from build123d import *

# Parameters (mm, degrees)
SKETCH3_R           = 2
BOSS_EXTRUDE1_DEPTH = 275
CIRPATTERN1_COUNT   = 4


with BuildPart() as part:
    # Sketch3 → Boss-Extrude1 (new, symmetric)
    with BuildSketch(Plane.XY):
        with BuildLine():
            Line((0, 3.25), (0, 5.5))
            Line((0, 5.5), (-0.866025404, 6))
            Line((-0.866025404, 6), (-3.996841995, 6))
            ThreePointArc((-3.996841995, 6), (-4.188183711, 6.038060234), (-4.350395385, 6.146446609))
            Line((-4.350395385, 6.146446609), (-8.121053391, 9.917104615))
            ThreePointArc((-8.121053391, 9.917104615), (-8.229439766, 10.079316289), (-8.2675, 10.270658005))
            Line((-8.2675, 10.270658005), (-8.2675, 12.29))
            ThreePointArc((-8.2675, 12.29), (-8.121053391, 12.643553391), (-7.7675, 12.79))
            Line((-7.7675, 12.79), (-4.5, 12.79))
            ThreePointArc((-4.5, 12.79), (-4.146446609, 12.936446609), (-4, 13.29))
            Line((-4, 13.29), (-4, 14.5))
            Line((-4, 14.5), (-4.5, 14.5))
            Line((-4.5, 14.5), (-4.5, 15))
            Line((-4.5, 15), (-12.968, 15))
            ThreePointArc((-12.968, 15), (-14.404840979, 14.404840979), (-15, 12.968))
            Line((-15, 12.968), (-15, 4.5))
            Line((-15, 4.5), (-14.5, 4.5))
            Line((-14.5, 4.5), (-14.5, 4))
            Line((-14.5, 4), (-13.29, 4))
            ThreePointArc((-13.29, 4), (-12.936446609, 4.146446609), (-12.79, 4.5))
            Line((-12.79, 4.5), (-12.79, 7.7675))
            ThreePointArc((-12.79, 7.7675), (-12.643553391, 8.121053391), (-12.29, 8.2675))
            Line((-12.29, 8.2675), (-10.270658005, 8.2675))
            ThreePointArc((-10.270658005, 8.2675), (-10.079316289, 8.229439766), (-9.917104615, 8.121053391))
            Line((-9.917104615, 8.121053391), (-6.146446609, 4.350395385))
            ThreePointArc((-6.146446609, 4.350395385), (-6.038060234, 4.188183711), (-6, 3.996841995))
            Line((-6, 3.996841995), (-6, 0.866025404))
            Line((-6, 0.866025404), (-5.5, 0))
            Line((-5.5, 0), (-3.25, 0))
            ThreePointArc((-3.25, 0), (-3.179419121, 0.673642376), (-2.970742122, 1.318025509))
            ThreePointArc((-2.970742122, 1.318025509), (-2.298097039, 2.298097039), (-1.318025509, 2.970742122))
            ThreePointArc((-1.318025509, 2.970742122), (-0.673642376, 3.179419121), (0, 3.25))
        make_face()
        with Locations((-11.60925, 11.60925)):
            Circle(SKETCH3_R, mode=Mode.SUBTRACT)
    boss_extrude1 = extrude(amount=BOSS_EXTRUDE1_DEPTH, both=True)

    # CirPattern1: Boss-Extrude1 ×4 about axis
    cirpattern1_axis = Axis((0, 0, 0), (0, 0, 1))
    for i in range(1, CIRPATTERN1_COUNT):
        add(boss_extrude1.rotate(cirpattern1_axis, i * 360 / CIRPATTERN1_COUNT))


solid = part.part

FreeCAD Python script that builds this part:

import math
import FreeCAD as App
import Part
import Sketcher
Q = App.Units.Quantity

doc = App.newDocument("Part")
body = doc.addObject("PartDesign::Body", "Body")

sketch1 = body.newObject("Sketcher::SketchObject", "Sketch")
sketch1.AttachmentSupport = (doc.getObject("XY_Plane"), [""])
sketch1.MapMode = "FlatFace"
sketch1.addGeometry([
    Part.LineSegment(App.Vector(0, 3.25, 0), App.Vector(0, 5.5, 0)),
    Part.LineSegment(App.Vector(0, 5.5, 0), App.Vector(-0.87, 6, 0)),
    Part.LineSegment(App.Vector(-0.87, 6, 0), App.Vector(-4, 6, 0)),
    Part.ArcOfCircle(Part.Circle(App.Vector(-4, 6.5, 0), App.Vector(0, 0, 1), 0.5), math.radians(-135), math.radians(-90)),
    Part.LineSegment(App.Vector(-4.35, 6.15, 0), App.Vector(-8.12, 9.92, 0)),
    Part.ArcOfCircle(Part.Circle(App.Vector(-7.77, 10.27, 0), App.Vector(0, 0, 1), 0.5), math.radians(-180), math.radians(-135)),
    Part.LineSegment(App.Vector(-8.27, 10.27, 0), App.Vector(-8.27, 12.29, 0)),
    Part.ArcOfCircle(Part.Circle(App.Vector(-7.77, 12.29, 0), App.Vector(0, 0, 1), 0.5), math.radians(90), math.radians(180)),
    Part.LineSegment(App.Vector(-7.77, 12.79, 0), App.Vector(-4.5, 12.79, 0)),
    Part.ArcOfCircle(Part.Circle(App.Vector(-4.5, 13.29, 0), App.Vector(0, 0, 1), 0.5), math.radians(-90), math.radians(0)),
    Part.LineSegment(App.Vector(-4, 13.29, 0), App.Vector(-4, 14.5, 0)),
    Part.LineSegment(App.Vector(-4, 14.5, 0), App.Vector(-4.5, 14.5, 0)),
    Part.LineSegment(App.Vector(-4.5, 14.5, 0), App.Vector(-4.5, 15, 0)),
    Part.LineSegment(App.Vector(-4.5, 15, 0), App.Vector(-12.97, 15, 0)),
    Part.ArcOfCircle(Part.Circle(App.Vector(-12.97, 12.97, 0), App.Vector(0, 0, 1), 2.03), math.radians(90), math.radians(180)),
    Part.LineSegment(App.Vector(-15, 12.97, 0), App.Vector(-15, 4.5, 0)),
    Part.LineSegment(App.Vector(-15, 4.5, 0), App.Vector(-14.5, 4.5, 0)),
    Part.LineSegment(App.Vector(-14.5, 4.5, 0), App.Vector(-14.5, 4, 0)),
    Part.LineSegment(App.Vector(-14.5, 4, 0), App.Vector(-13.29, 4, 0)),
    Part.ArcOfCircle(Part.Circle(App.Vector(-13.29, 4.5, 0), App.Vector(0, 0, 1), 0.5), math.radians(-90), math.radians(0)),
    Part.LineSegment(App.Vector(-12.79, 4.5, 0), App.Vector(-12.79, 7.77, 0)),
    Part.ArcOfCircle(Part.Circle(App.Vector(-12.29, 7.77, 0), App.Vector(0, 0, 1), 0.5), math.radians(90), math.radians(180)),
    Part.LineSegment(App.Vector(-12.29, 8.27, 0), App.Vector(-10.27, 8.27, 0)),
    Part.ArcOfCircle(Part.Circle(App.Vector(-10.27, 7.77, 0), App.Vector(0, 0, 1), 0.5), math.radians(45), math.radians(90)),
    Part.LineSegment(App.Vector(-9.92, 8.12, 0), App.Vector(-6.15, 4.35, 0)),
    Part.ArcOfCircle(Part.Circle(App.Vector(-6.5, 4, 0), App.Vector(0, 0, 1), 0.5), math.radians(0), math.radians(45)),
    Part.LineSegment(App.Vector(-6, 4, 0), App.Vector(-6, 0.87, 0)),
    Part.LineSegment(App.Vector(-6, 0.87, 0), App.Vector(-5.5, 0, 0)),
    Part.LineSegment(App.Vector(-5.5, 0, 0), App.Vector(-3.25, 0, 0)),
    Part.ArcOfCircle(Part.Circle(App.Vector(0, 0, 0), App.Vector(0, 0, 1), 3.25), math.radians(156), math.radians(180)),
    Part.ArcOfCircle(Part.Circle(App.Vector(0, 0, 0), App.Vector(0, 0, 1), 3.25), math.radians(114), math.radians(156)),
    Part.ArcOfCircle(Part.Circle(App.Vector(0, 0, 0), App.Vector(0, 0, 1), 3.25), math.radians(90), math.radians(114)),
    Part.Circle(App.Vector(-11.61, 11.61, 0), App.Vector(0, 0, 1), 2),
], False)
sketch1.addConstraint([
    Sketcher.Constraint("Coincident", 0, 2, 1, 1),
    Sketcher.Constraint("Coincident", 1, 2, 2, 1),
    Sketcher.Constraint("Tangent", 2, 2, 3, 2),
    Sketcher.Constraint("Tangent", 3, 1, 4, 1),
    Sketcher.Constraint("Tangent", 4, 2, 5, 2),
    Sketcher.Constraint("Tangent", 5, 1, 6, 1),
    Sketcher.Constraint("Tangent", 6, 2, 7, 2),
    Sketcher.Constraint("Tangent", 7, 1, 8, 1),
    Sketcher.Constraint("Tangent", 8, 2, 9, 1),
    Sketcher.Constraint("Tangent", 9, 2, 10, 1),
    Sketcher.Constraint("Coincident", 10, 2, 11, 1),
    Sketcher.Constraint("Coincident", 11, 2, 12, 1),
    Sketcher.Constraint("Coincident", 12, 2, 13, 1),
    Sketcher.Constraint("Tangent", 13, 2, 14, 1),
    Sketcher.Constraint("Tangent", 14, 2, 15, 1),
    Sketcher.Constraint("Coincident", 15, 2, 16, 1),
    Sketcher.Constraint("Coincident", 16, 2, 17, 1),
    Sketcher.Constraint("Coincident", 17, 2, 18, 1),
    Sketcher.Constraint("Tangent", 18, 2, 19, 1),
    Sketcher.Constraint("Tangent", 19, 2, 20, 1),
    Sketcher.Constraint("Tangent", 20, 2, 21, 2),
    Sketcher.Constraint("Tangent", 21, 1, 22, 1),
    Sketcher.Constraint("Tangent", 22, 2, 23, 2),
    Sketcher.Constraint("Tangent", 23, 1, 24, 1),
    Sketcher.Constraint("Tangent", 24, 2, 25, 2),
    Sketcher.Constraint("Tangent", 25, 1, 26, 1),
    Sketcher.Constraint("Coincident", 26, 2, 27, 1),
    Sketcher.Constraint("Coincident", 27, 2, 28, 1),
    Sketcher.Constraint("Coincident", 28, 2, 29, 2),
    Sketcher.Constraint("Tangent", 29, 1, 30, 2),
    Sketcher.Constraint("Tangent", 30, 1, 31, 2),
    Sketcher.Constraint("Coincident", 31, 1, 0, 1),
    Sketcher.Constraint("Vertical", 0),
    Sketcher.Constraint("Horizontal", 2),
    Sketcher.Constraint("Vertical", 6),
    Sketcher.Constraint("Horizontal", 8),
    Sketcher.Constraint("Vertical", 10),
    Sketcher.Constraint("Horizontal", 11),
    Sketcher.Constraint("Vertical", 12),
    Sketcher.Constraint("Horizontal", 13),
    Sketcher.Constraint("Vertical", 15),
    Sketcher.Constraint("Horizontal", 16),
    Sketcher.Constraint("Vertical", 17),
    Sketcher.Constraint("Horizontal", 18),
    Sketcher.Constraint("Vertical", 20),
    Sketcher.Constraint("Horizontal", 22),
    Sketcher.Constraint("Vertical", 26),
    Sketcher.Constraint("Horizontal", 28),
    Sketcher.Constraint("Coincident", 29, 3, -1, 1),
    Sketcher.Constraint("Coincident", 31, 3, -1, 1),
    Sketcher.Constraint("Equal", 3, 5),
    Sketcher.Constraint("Equal", 5, 7),
    Sketcher.Constraint("Equal", 7, 9),
    Sketcher.Constraint("Equal", 9, 19),
    Sketcher.Constraint("Equal", 19, 21),
    Sketcher.Constraint("Equal", 21, 23),
    Sketcher.Constraint("Equal", 23, 25),
    Sketcher.Constraint("PointOnObject", 0, 2, -2),
    Sketcher.Constraint("PointOnObject", 27, 2, -1),
    Sketcher.Constraint("Parallel", 4, 24),
    Sketcher.Constraint("Horizontal", 19, 3, 15, 2),
    Sketcher.Constraint("Vertical", 8, 2, 11, 2),
    Sketcher.Constraint("Equal", 11, 16),
    Sketcher.Constraint("Equal", 28, 0),
    Sketcher.Constraint("Equal", 22, 6),
    Sketcher.Constraint("Equal", 18, 10),
    Sketcher.Constraint("Equal", 16, 12),
    Sketcher.Constraint("Equal", 13, 15),
    Sketcher.Constraint("Equal", 8, 20),
    Sketcher.Constraint("Equal", 2, 26),
    Sketcher.Constraint("Equal", 4, 24),
    Sketcher.Constraint("Equal", 1, 27),
    Sketcher.Constraint("Diameter", 32, 4.0),
    Sketcher.Constraint("Radius", 3, 0.5),
    Sketcher.Constraint("Angle", 1, Q("150 deg")),
    Sketcher.Constraint("Angle", 4, Q("135 deg")),
    Sketcher.Constraint("Radius", 29, 3.25),
    Sketcher.Constraint("Distance", 1, 1.0),
    Sketcher.Constraint("DistanceY", -1, 1, 1, 2, 6.0),
    Sketcher.Constraint("DistanceX", 9, 2, -1, 1, 4.0),
    Sketcher.Constraint("DistanceY", -1, 1, 12, 2, 15.0),
    Sketcher.Constraint("Radius", 14, 2.032),
    Sketcher.Constraint("DistanceX", 18, 1, 18, 2, 1.21),
    Sketcher.Constraint("DistanceX", 8, 1, 8, 2, 3.2675),
    Sketcher.Constraint("DistanceY", 26, 2, 29, 1, 0.452),
    Sketcher.Constraint("DistanceX", 30, 1, 1, 2, 0.452),
    Sketcher.Constraint("DistanceX", 22, 1, 22, 2, 2.019342),
    Sketcher.Constraint("DistanceX", 32, 3, -1, 1, 11.60925),
    Sketcher.Constraint("DistanceY", -1, 1, 32, 3, 11.60925),
])
pad1 = body.newObject("PartDesign::Pad", "Pad")
pad1.Profile = sketch1
pad1.Length = 550
pad1.Midplane = True
doc.recompute()

polarpattern = body.newObject("PartDesign::PolarPattern", "PolarPattern")
polarpattern.Originals = [pad1]
polarpattern.Axis = (doc.getObject("Z_Axis"), [""])
polarpattern.Angle = 360
polarpattern.Occurrences = 4
body.Tip = polarpattern

doc.recompute()
